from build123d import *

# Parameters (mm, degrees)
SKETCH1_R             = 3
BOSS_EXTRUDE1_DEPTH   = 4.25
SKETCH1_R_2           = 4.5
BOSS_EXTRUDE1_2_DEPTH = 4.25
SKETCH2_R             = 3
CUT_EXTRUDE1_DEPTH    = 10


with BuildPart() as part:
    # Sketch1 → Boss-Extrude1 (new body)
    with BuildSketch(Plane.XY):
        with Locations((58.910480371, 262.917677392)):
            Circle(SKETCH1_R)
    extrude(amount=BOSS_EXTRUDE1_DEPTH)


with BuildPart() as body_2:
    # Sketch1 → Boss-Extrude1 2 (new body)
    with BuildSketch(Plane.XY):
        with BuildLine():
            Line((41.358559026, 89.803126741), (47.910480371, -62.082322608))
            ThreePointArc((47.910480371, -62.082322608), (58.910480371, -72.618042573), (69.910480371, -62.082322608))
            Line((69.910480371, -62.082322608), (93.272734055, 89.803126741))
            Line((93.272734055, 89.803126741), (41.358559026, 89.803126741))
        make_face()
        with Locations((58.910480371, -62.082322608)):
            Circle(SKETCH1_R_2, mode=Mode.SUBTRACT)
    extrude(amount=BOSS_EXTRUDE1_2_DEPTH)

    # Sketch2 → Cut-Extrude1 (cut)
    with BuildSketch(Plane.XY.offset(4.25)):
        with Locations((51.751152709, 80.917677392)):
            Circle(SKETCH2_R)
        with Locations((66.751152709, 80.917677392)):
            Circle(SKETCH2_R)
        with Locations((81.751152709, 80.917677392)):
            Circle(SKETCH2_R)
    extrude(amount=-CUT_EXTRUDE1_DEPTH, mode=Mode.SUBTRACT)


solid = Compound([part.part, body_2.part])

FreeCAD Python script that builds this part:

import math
import FreeCAD as App
import Part
import Sketcher
Q = App.Units.Quantity

doc = App.newDocument("Part")
body = doc.addObject("PartDesign::Body", "Body")

# Sketch on XY plane
sketch1 = body.newObject("Sketcher::SketchObject", "Sketch")
sketch1.AttachmentSupport = (doc.getObject("XY_Plane"), [""])
sketch1.MapMode = "FlatFace"
sketch1.addGeometry(Part.Circle(App.Vector(58.91048, 262.917677, 0), App.Vector(0, 0, 1), 3), False)
sketch1.addConstraint(Sketcher.Constraint("Diameter", 0, Q("6 mm")))
sketch1.addConstraint(Sketcher.Constraint("DistanceX", -1, 1, 0, 3, Q("58.91048 mm")))
sketch1.addConstraint(Sketcher.Constraint("DistanceY", -1, 1, 0, 3, Q("262.917677 mm")))
pad1 = body.newObject("PartDesign::Pad", "Pad")
pad1.Profile = sketch1
pad1.Length = 4.25
body2 = doc.addObject("PartDesign::Body", "Body001")

# Sketch on XY plane
sketch2 = body2.newObject("Sketcher::SketchObject", "Sketch001")
sketch2.AttachmentSupport = (doc.getObject("XY_Plane001"), [""])
sketch2.MapMode = "FlatFace"
sketch2.addGeometry(Part.LineSegment(App.Vector(41.358559, 89.803127, 0), App.Vector(47.91048, -62.082323, 0)), False)
sketch2.addGeometry(Part.ArcOfCircle(Part.Circle(App.Vector(58.91048, -61.607813, 0), App.Vector(0, 0, 1), 11.01023), math.radians(-177.529949), math.radians(-2.470051)), False)
sketch2.addGeometry(Part.LineSegment(App.Vector(69.91048, -62.082323, 0), App.Vector(93.272734, 89.803127, 0)), False)
sketch2.addGeometry(Part.LineSegment(App.Vector(93.272734, 89.803127, 0), App.Vector(41.358559, 89.803127, 0)), False)
sketch2.addGeometry(Part.Circle(App.Vector(58.91048, -62.082323, 0), App.Vector(0, 0, 1), 4.5), False)
sketch2.addConstraint(Sketcher.Constraint("Coincident", 0, 2, 1, 1))
sketch2.addConstraint(Sketcher.Constraint("Coincident", 1, 2, 2, 1))
sketch2.addConstraint(Sketcher.Constraint("Coincident", 2, 2, 3, 1))
sketch2.addConstraint(Sketcher.Constraint("Coincident", 3, 2, 0, 1))
sketch2.addConstraint(Sketcher.Constraint("Horizontal", 3))
sketch2.addConstraint(Sketcher.Constraint("Diameter", 4, Q("9 mm")))
sketch2.addConstraint(Sketcher.Constraint("DistanceX", 0, 2, 4, 3, Q("11 mm")))
sketch2.addConstraint(Sketcher.Constraint("DistanceX", 0, 2, 1, 3, Q("11 mm")))
sketch2.addConstraint(Sketcher.Constraint("DistanceX", 4, 3, 1, 2, Q("11 mm")))
sketch2.addConstraint(Sketcher.Constraint("Radius", 1, Q("11.01023 mm")))
sketch2.addConstraint(Sketcher.Constraint("Distance", 0, Q("152.0267 mm")))
sketch2.addConstraint(Sketcher.Constraint("Distance", 2, Q("153.671678 mm")))
sketch2.addConstraint(Sketcher.Constraint("DistanceX", 3, 2, 3, 1, Q("51.914175 mm")))
sketch2.addConstraint(Sketcher.Constraint("DistanceX", -1, 1, 1, 3, Q("58.91048 mm")))
sketch2.addConstraint(Sketcher.Constraint("DistanceY", 4, 3, 1, 3, Q("0.47451 mm")))
sketch2.addConstraint(Sketcher.Constraint("DistanceY", 1, 3, -1, 1, Q("61.607813 mm")))
pad2 = body2.newObject("PartDesign::Pad", "Pad001")
pad2.Profile = sketch2
pad2.Length = 4.25

# Sketch on XY plane
sketch3 = body2.newObject("Sketcher::SketchObject", "Sketch002")
sketch3.AttachmentSupport = (doc.getObject("XY_Plane001"), [""])
sketch3.MapMode = "FlatFace"
sketch3.AttachmentOffset = App.Placement(App.Vector(0, 0, 4.25), App.Rotation())
sketch3.addGeometry(Part.Circle(App.Vector(51.751153, 80.917677, 0), App.Vector(0, 0, 1), 3), False)
sketch3.addGeometry(Part.Circle(App.Vector(66.751153, 80.917677, 0), App.Vector(0, 0, 1), 3), False)
sketch3.addGeometry(Part.Circle(App.Vector(81.751153, 80.917677, 0), App.Vector(0, 0, 1), 3), False)
sketch3.addConstraint(Sketcher.Constraint("Equal", 0, 1))
sketch3.addConstraint(Sketcher.Constraint("Equal", 1, 2))
sketch3.addConstraint(Sketcher.Constraint("Horizontal", 0, 3, 1, 3))
sketch3.addConstraint(Sketcher.Constraint("Horizontal", 1, 3, 2, 3))
sketch3.addConstraint(Sketcher.Constraint("Diameter", 0, Q("6 mm")))
sketch3.addConstraint(Sketcher.Constraint("DistanceX", 0, 3, 1, 3, Q("15 mm")))
sketch3.addConstraint(Sketcher.Constraint("DistanceX", 1, 3, 2, 3, Q("15 mm")))
sketch3.addConstraint(Sketcher.Constraint("DistanceX", -1, 1, 0, 3, Q("51.751153 mm")))
sketch3.addConstraint(Sketcher.Constraint("DistanceY", -1, 1, 0, 3, Q("80.917677 mm")))
pocket1 = body2.newObject("PartDesign::Pocket", "Pocket")
pocket1.Profile = sketch3
pocket1.Length = 10

doc.recompute()
